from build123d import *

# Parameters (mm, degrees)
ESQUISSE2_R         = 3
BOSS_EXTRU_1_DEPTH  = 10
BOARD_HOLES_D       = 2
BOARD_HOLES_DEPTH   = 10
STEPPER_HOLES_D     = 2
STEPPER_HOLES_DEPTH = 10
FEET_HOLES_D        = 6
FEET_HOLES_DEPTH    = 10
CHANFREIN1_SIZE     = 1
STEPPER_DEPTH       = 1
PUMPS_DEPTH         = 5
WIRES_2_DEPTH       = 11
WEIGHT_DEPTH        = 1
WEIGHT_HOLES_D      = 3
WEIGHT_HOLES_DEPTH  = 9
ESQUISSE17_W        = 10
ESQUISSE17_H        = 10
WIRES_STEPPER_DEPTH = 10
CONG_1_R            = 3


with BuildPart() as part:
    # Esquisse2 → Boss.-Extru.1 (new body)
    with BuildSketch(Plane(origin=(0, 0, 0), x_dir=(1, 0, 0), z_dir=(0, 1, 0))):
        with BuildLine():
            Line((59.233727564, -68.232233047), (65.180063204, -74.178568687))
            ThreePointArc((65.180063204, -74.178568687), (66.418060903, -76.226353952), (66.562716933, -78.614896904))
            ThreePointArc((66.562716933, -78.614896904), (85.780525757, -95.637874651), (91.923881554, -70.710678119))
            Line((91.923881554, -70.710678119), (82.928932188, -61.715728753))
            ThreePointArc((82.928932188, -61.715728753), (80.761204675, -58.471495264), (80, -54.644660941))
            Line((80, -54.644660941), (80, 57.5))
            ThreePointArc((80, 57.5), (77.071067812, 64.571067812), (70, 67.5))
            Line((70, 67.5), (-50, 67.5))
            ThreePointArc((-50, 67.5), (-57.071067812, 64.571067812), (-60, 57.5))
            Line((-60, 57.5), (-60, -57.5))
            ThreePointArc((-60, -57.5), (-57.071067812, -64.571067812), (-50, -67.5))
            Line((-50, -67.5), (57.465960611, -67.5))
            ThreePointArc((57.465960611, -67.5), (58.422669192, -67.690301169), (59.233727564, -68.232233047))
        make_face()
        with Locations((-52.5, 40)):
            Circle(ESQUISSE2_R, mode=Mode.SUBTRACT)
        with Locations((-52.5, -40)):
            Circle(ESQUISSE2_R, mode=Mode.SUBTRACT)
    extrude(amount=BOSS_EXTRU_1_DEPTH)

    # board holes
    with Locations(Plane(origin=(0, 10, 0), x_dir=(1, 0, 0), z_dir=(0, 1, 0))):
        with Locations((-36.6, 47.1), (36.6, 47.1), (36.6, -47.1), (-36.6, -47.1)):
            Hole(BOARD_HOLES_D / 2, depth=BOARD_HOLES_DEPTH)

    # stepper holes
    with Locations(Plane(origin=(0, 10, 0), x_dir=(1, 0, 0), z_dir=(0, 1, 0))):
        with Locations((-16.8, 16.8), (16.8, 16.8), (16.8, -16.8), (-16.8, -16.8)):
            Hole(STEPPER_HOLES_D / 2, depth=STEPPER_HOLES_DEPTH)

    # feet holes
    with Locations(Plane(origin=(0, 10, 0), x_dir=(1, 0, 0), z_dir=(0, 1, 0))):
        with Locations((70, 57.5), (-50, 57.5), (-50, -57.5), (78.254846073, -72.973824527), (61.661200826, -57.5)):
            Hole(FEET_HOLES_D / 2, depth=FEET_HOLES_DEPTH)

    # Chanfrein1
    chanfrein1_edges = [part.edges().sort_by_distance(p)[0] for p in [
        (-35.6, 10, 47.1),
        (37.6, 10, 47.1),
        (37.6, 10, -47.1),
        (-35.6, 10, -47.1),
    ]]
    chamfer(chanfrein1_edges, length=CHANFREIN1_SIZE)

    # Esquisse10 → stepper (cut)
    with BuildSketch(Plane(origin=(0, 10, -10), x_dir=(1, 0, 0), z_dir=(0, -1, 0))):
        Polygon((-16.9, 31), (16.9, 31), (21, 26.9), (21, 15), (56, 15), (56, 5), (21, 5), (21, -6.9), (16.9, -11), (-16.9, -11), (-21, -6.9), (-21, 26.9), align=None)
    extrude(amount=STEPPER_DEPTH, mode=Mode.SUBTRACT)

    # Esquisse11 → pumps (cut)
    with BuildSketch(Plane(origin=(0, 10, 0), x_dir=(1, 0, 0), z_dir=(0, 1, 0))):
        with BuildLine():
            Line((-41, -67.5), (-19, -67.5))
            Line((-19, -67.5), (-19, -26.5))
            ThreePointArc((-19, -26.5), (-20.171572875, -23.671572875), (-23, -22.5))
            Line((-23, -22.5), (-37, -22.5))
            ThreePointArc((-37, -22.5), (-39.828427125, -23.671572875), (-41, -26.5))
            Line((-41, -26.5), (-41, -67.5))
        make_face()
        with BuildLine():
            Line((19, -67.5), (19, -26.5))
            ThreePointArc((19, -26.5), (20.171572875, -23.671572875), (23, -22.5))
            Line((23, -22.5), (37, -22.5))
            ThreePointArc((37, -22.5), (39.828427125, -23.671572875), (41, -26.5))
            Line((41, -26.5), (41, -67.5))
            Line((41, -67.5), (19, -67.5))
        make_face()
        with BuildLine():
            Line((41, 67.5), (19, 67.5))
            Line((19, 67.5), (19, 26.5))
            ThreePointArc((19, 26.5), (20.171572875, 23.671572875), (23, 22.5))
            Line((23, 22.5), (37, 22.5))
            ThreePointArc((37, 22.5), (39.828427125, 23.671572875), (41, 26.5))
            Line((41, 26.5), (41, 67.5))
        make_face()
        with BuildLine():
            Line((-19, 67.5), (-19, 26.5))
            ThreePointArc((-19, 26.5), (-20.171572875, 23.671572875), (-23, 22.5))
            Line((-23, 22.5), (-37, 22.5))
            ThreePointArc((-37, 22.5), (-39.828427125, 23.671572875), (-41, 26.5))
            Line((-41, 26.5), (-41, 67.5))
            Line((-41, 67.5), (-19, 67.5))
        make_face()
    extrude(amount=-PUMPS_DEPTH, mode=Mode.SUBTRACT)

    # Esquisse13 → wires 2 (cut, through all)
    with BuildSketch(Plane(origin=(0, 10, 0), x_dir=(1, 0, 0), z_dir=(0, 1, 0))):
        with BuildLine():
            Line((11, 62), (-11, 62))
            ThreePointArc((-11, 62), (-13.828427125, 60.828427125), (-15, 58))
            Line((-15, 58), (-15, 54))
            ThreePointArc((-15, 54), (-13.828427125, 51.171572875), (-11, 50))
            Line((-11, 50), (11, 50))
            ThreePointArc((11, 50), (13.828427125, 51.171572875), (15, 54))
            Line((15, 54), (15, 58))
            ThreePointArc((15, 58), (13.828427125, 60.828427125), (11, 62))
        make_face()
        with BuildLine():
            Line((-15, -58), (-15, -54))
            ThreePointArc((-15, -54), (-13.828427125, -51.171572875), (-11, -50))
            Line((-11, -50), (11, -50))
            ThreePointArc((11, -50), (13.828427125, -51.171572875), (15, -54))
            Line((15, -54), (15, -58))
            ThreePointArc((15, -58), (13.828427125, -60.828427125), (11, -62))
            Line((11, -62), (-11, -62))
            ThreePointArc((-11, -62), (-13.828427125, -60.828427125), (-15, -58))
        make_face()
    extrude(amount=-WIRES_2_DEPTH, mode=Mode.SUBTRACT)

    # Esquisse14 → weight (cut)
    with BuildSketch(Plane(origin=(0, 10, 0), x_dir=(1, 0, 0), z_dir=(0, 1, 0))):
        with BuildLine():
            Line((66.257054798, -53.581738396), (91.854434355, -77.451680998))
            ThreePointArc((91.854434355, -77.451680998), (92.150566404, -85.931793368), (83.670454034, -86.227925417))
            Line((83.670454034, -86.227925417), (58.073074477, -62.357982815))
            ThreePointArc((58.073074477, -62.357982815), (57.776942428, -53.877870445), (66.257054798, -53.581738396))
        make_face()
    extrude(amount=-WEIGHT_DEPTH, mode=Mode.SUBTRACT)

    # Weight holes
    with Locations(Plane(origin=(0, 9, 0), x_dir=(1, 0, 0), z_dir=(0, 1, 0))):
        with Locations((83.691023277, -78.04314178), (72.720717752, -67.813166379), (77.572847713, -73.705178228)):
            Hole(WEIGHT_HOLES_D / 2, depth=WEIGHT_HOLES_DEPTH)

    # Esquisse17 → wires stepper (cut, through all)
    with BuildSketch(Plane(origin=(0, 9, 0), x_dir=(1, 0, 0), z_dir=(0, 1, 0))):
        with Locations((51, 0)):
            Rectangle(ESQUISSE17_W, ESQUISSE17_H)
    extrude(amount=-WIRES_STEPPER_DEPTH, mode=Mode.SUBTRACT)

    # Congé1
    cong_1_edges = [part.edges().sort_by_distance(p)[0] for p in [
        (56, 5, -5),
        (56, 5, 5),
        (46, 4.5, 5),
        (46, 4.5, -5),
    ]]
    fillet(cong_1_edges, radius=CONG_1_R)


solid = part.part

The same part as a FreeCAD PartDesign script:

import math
import FreeCAD as App
import Part
import Sketcher
Q = App.Units.Quantity


def edges_at(feature, points):
    """Names of the edges that pass closest to the given points."""
    edges = feature.Shape.Edges
    near = lambda p: min(range(len(edges)), key=lambda i: edges[i].distToShape(Part.Vertex(*p))[0])
    return sorted({f"Edge{near(p) + 1}" for p in points})


def add_polygon(sketch, points):
    """Adds a closed chain of lines whose ends are joined by coincident constraints."""
    first, n = sketch.GeometryCount, len(points)
    for a, b in zip(points, points[1:] + points[:1]):
        sketch.addGeometry(Part.LineSegment(App.Vector(*a, 0), App.Vector(*b, 0)), False)
    for i in range(n):
        sketch.addConstraint(Sketcher.Constraint("Coincident", first + i, 2, first + (i + 1) % n, 1))

doc = App.newDocument("Part")
body = doc.addObject("PartDesign::Body", "Body")

# Sketch on XZ plane
sketch1 = body.newObject("Sketcher::SketchObject", "Sketch")
sketch1.AttachmentSupport = (doc.getObject("XZ_Plane"), [""])
sketch1.MapMode = "FlatFace"
sketch1.addGeometry(Part.LineSegment(App.Vector(59.2, 68.2, 0), App.Vector(65.2, 74.2, 0)), False)
sketch1.addGeometry(Part.ArcOfCircle(Part.Circle(App.Vector(61.6, 77.7, 0), App.Vector(0, 0, 1), 5), math.radians(-45), math.radians(10)), False)
sketch1.addGeometry(Part.ArcOfCircle(Part.Circle(App.Vector(81.3, 81.3, 0), App.Vector(0, 0, 1), 15), math.radians(-45), math.radians(190)), False)
sketch1.addGeometry(Part.LineSegment(App.Vector(91.9, 70.7, 0), App.Vector(82.9, 61.7, 0)), False)
sketch1.addGeometry(Part.ArcOfCircle(Part.Circle(App.Vector(90, 54.6, 0), App.Vector(0, 0, 1), 10), math.radians(135), math.radians(180)), False)
sketch1.addGeometry(Part.LineSegment(App.Vector(80, 54.6, 0), App.Vector(80, -57.5, 0)), False)
sketch1.addGeometry(Part.ArcOfCircle(Part.Circle(App.Vector(70, -57.5, 0), App.Vector(0, 0, 1), 10), math.radians(-90), math.radians(0)), False)
sketch1.addGeometry(Part.LineSegment(App.Vector(70, -67.5, 0), App.Vector(-50, -67.5, 0)), False)
sketch1.addGeometry(Part.ArcOfCircle(Part.Circle(App.Vector(-50, -57.5, 0), App.Vector(0, 0, 1), 10), math.radians(180), math.radians(270)), False)
sketch1.addGeometry(Part.LineSegment(App.Vector(-60, -57.5, 0), App.Vector(-60, 57.5, 0)), False)
sketch1.addGeometry(Part.ArcOfCircle(Part.Circle(App.Vector(-50, 57.5, 0), App.Vector(0, 0, 1), 10), math.radians(90), math.radians(180)), False)
sketch1.addGeometry(Part.LineSegment(App.Vector(-50, 67.5, 0), App.Vector(57.5, 67.5, 0)), False)
sketch1.addGeometry(Part.ArcOfCircle(Part.Circle(App.Vector(57.5, 70, 0), App.Vector(0, 0, 1), 2.5), math.radians(-90), math.radians(-45)), False)
sketch1.addGeometry(Part.Circle(App.Vector(-52.5, 40, 0), App.Vector(0, 0, 1), 3), False)
sketch1.addGeometry(Part.Circle(App.Vector(-52.5, -40, 0), App.Vector(0, 0, 1), 3), False)
sketch1.addConstraint(Sketcher.Constraint("Tangent", 0, 2, 1, 1))
sketch1.addConstraint(Sketcher.Constraint("Tangent", 1, 2, 2, 2))
sketch1.addConstraint(Sketcher.Constraint("Tangent", 2, 1, 3, 1))
sketch1.addConstraint(Sketcher.Constraint("Tangent", 3, 2, 4, 1))
sketch1.addConstraint(Sketcher.Constraint("Tangent", 4, 2, 5, 1))
sketch1.addConstraint(Sketcher.Constraint("Tangent", 5, 2, 6, 2))
sketch1.addConstraint(Sketcher.Constraint("Tangent", 6, 1, 7, 1))
sketch1.addConstraint(Sketcher.Constraint("Tangent", 7, 2, 8, 2))
sketch1.addConstraint(Sketcher.Constraint("Tangent", 8, 1, 9, 1))
sketch1.addConstraint(Sketcher.Constraint("Tangent", 9, 2, 10, 2))
sketch1.addConstraint(Sketcher.Constraint("Tangent", 10, 1, 11, 1))
sketch1.addConstraint(Sketcher.Constraint("Tangent", 11, 2, 12, 1))
sketch1.addConstraint(Sketcher.Constraint("Tangent", 12, 2, 0, 1))
sketch1.addConstraint(Sketcher.Constraint("Vertical", 5))
sketch1.addConstraint(Sketcher.Constraint("Horizontal", 7))
sketch1.addConstraint(Sketcher.Constraint("Vertical", 9))
sketch1.addConstraint(Sketcher.Constraint("Horizontal", 11))
sketch1.addConstraint(Sketcher.Constraint("Equal", 4, 6))
sketch1.addConstraint(Sketcher.Constraint("Equal", 6, 8))
sketch1.addConstraint(Sketcher.Constraint("Equal", 8, 10))
sketch1.addConstraint(Sketcher.Constraint("Equal", 13, 14))
sketch1.addConstraint(Sketcher.Constraint("Symmetric", 13, 3, 14, 3, -1))
sketch1.addConstraint(Sketcher.Constraint("Parallel", 0, 3))
sketch1.addConstraint(Sketcher.Constraint("Diameter", 13, 6.0))
sketch1.addConstraint(Sketcher.Constraint("Radius", 1, 5.0))
sketch1.addConstraint(Sketcher.Constraint("Radius", 2, 15.0))
sketch1.addConstraint(Sketcher.Constraint("Radius", 4, 10.0))
sketch1.addConstraint(Sketcher.Constraint("Radius", 12, 2.5))
sketch1.addConstraint(Sketcher.Constraint("DistanceX", 7, 2, 7, 1, 120.0))
sketch1.addConstraint(Sketcher.Constraint("DistanceY", 9, 1, 9, 2, 115.0))
sketch1.addConstraint(Sketcher.Constraint("Angle", 0, Q("45 deg")))
sketch1.addConstraint(Sketcher.Constraint("DistanceX", -1, 1, 4, 3, 90.0))
sketch1.addConstraint(Sketcher.Constraint("DistanceY", -1, 1, 12, 3, 70.0))
sketch1.addConstraint(Sketcher.Constraint("DistanceY", -1, 1, 13, 3, 40.0))
sketch1.addConstraint(Sketcher.Constraint("DistanceX", 13, 3, -1, 1, 52.5))
sketch1.addConstraint(Sketcher.Constraint("DistanceX", 11, 1, 11, 2, 107.465961))
sketch1.addConstraint(Sketcher.Constraint("DistanceY", 5, 2, 5, 1, 112.144661))
sketch1.addConstraint(Sketcher.Constraint("DistanceX", 12, 2, 1, 3, 2.410802))
pad1 = body.newObject("PartDesign::Pad", "Pad")
pad1.Profile = sketch1
pad1.Length = 10
pad1.Reversed = True

# Sketch on XZ plane
sketch2 = body.newObject("Sketcher::SketchObject", "Sketch001")
sketch2.AttachmentSupport = (doc.getObject("XZ_Plane"), [""])
sketch2.MapMode = "FlatFace"
sketch2.AttachmentOffset = App.Placement(App.Vector(0, 0, -10), App.Rotation())
sketch2.addGeometry(Part.Circle(App.Vector(-36.6, -47.1, 0), App.Vector(0, 0, 1), 1), False)
sketch2.addGeometry(Part.Circle(App.Vector(36.6, -47.1, 0), App.Vector(0, 0, 1), 1), False)
sketch2.addGeometry(Part.Circle(App.Vector(36.6, 47.1, 0), App.Vector(0, 0, 1), 1), False)
sketch2.addGeometry(Part.Circle(App.Vector(-36.6, 47.1, 0), App.Vector(0, 0, 1), 1), False)
sketch2.addConstraint(Sketcher.Constraint("Equal", 0, 1))
sketch2.addConstraint(Sketcher.Constraint("Equal", 1, 2))
sketch2.addConstraint(Sketcher.Constraint("Equal", 2, 3))
sketch2.addConstraint(Sketcher.Constraint("Symmetric", 0, 3, 2, 3, -1, 1))
sketch2.addConstraint(Sketcher.Constraint("Symmetric", 1, 3, 3, 3, -1, 1))
sketch2.addConstraint(Sketcher.Constraint("Symmetric", 0, 3, 1, 3, -2))
sketch2.addConstraint(Sketcher.Constraint("Diameter", 0, 2.0))
sketch2.addConstraint(Sketcher.Constraint("DistanceX", 0, 3, -1, 1, 36.6))
sketch2.addConstraint(Sketcher.Constraint("DistanceY", 0, 3, -1, 1, 47.1))
doc.recompute()
hole = body.newObject("PartDesign::Hole", "Hole")
hole.Profile = sketch2
hole.ThreadType = "None"
hole.Diameter = 2
hole.DepthType = "Dimension"
hole.Depth = 10
hole.DrillPoint = "Flat"
hole.Reversed = True

# Sketch on XZ plane
sketch3 = body.newObject("Sketcher::SketchObject", "Sketch002")
sketch3.AttachmentSupport = (doc.getObject("XZ_Plane"), [""])
sketch3.MapMode = "FlatFace"
sketch3.AttachmentOffset = App.Placement(App.Vector(0, 0, -10), App.Rotation())
sketch3.addGeometry(Part.Circle(App.Vector(-16.8, -16.8, 0), App.Vector(0, 0, 1), 1), False)
sketch3.addGeometry(Part.Circle(App.Vector(16.8, -16.8, 0), App.Vector(0, 0, 1), 1), False)
sketch3.addGeometry(Part.Circle(App.Vector(16.8, 16.8, 0), App.Vector(0, 0, 1), 1), False)
sketch3.addGeometry(Part.Circle(App.Vector(-16.8, 16.8, 0), App.Vector(0, 0, 1), 1), False)
sketch3.addConstraint(Sketcher.Constraint("Equal", 0, 1))
sketch3.addConstraint(Sketcher.Constraint("Equal", 1, 2))
sketch3.addConstraint(Sketcher.Constraint("Equal", 2, 3))
sketch3.addConstraint(Sketcher.Constraint("Symmetric", 0, 3, 2, 3, -1, 1))
sketch3.addConstraint(Sketcher.Constraint("Symmetric", 1, 3, 3, 3, -1, 1))
sketch3.addConstraint(Sketcher.Constraint("Symmetric", 0, 3, 1, 3, -2))
sketch3.addConstraint(Sketcher.Constraint("Diameter", 0, 2.0))
sketch3.addConstraint(Sketcher.Constraint("DistanceX", 0, 3, -1, 1, 16.8))
sketch3.addConstraint(Sketcher.Constraint("DistanceY", 0, 3, -1, 1, 16.8))
doc.recompute()
hole2 = body.newObject("PartDesign::Hole", "Hole001")
hole2.Profile = sketch3
hole2.ThreadType = "None"
hole2.Diameter = 2
hole2.DepthType = "Dimension"
hole2.Depth = 10
hole2.DrillPoint = "Flat"
hole2.Reversed = True

# Sketch on XZ plane
sketch4 = body.newObject("Sketcher::SketchObject", "Sketch003")
sketch4.AttachmentSupport = (doc.getObject("XZ_Plane"), [""])
sketch4.MapMode = "FlatFace"
sketch4.AttachmentOffset = App.Placement(App.Vector(0, 0, -10), App.Rotation())
sketch4.addGeometry(Part.Circle(App.Vector(70, -57.5, 0), App.Vector(0, 0, 1), 3), False)
sketch4.addGeometry(Part.Circle(App.Vector(-50, -57.5, 0), App.Vector(0, 0, 1), 3), False)
sketch4.addGeometry(Part.Circle(App.Vector(-50, 57.5, 0), App.Vector(0, 0, 1), 3), False)
sketch4.addGeometry(Part.Circle(App.Vector(78.3, 73, 0), App.Vector(0, 0, 1), 3), False)
sketch4.addGeometry(Part.Circle(App.Vector(61.7, 57.5, 0), App.Vector(0, 0, 1), 3), False)
sketch4.addConstraint(Sketcher.Constraint("Equal", 0, 1))
sketch4.addConstraint(Sketcher.Constraint("Equal", 1, 2))
sketch4.addConstraint(Sketcher.Constraint("Equal", 2, 3))
sketch4.addConstraint(Sketcher.Constraint("Equal", 3, 4))
sketch4.addConstraint(Sketcher.Constraint("Symmetric", 1, 3, 2, 3, -1))
sketch4.addConstraint(Sketcher.Constraint("Horizontal", 0, 3, 1, 3))
sketch4.addConstraint(Sketcher.Constraint("Horizontal", 2, 3, 4, 3))
sketch4.addConstraint(Sketcher.Constraint("Diameter", 0, 6.0))
sketch4.addConstraint(Sketcher.Constraint("DistanceX", -1, 1, 0, 3, 70.0))
sketch4.addConstraint(Sketcher.Constraint("DistanceX", 1, 3, -1, 1, 50.0))
sketch4.addConstraint(Sketcher.Constraint("DistanceY", 1, 3, 2, 3, 115.0))
sketch4.addConstraint(Sketcher.Constraint("DistanceX", -1, 1, 4, 3, 61.661201))
sketch4.addConstraint(Sketcher.Constraint("DistanceX", -1, 1, 3, 3, 78.254846))
sketch4.addConstraint(Sketcher.Constraint("DistanceY", -1, 1, 3, 3, 72.973825))
doc.recompute()
hole3 = body.newObject("PartDesign::Hole", "Hole002")
hole3.Profile = sketch4
hole3.ThreadType = "None"
hole3.Diameter = 6
hole3.DepthType = "Dimension"
hole3.Depth = 10
hole3.DrillPoint = "Flat"
hole3.Reversed = True
doc.recompute()

chamfer = body.newObject("PartDesign::Chamfer", "Chamfer")
chamfer.Base = (hole3, edges_at(hole3, [
    (-35.6, 10, 47.1),
    (37.6, 10, 47.1),
    (37.6, 10, -47.1),
    (-35.6, 10, -47.1),
]))
chamfer.Size = 1

# Sketch on XZ plane
sketch5 = body.newObject("Sketcher::SketchObject", "Sketch004")
sketch5.AttachmentSupport = (doc.getObject("XZ_Plane"), [""])
sketch5.MapMode = "FlatFace"
sketch5.AttachmentOffset = App.Placement(App.Vector(0, 0, -10), App.Rotation())
add_polygon(sketch5, [(17, 21), (-17, 21), (-21, 17), (-21, -17), (-17, -21), (17, -21), (21, -17), (21, -5), (56, -5), (56, 5), (21, 5), (21, 17)])  # lines 0-11
sketch5.addConstraint(Sketcher.Constraint("Horizontal", 0))
sketch5.addConstraint(Sketcher.Constraint("Vertical", 2))
sketch5.addConstraint(Sketcher.Constraint("Horizontal", 4))
sketch5.addConstraint(Sketcher.Constraint("Vertical", 6))
sketch5.addConstraint(Sketcher.Constraint("Horizontal", 7))
sketch5.addConstraint(Sketcher.Constraint("Vertical", 8))
sketch5.addConstraint(Sketcher.Constraint("Horizontal", 9))
sketch5.addConstraint(Sketcher.Constraint("Vertical", 10))
sketch5.addConstraint(Sketcher.Constraint("Symmetric", 0, 2, 4, 2, -1, 1))
sketch5.addConstraint(Sketcher.Constraint("Symmetric", 1, 2, 5, 2, -1, 1))
sketch5.addConstraint(Sketcher.Constraint("Symmetric", 2, 2, 10, 2, -1, 1))
sketch5.addConstraint(Sketcher.Constraint("Perpendicular", 1, 3))
sketch5.addConstraint(Sketcher.Constraint("Perpendicular", 5, 11))
sketch5.addConstraint(Sketcher.Constraint("Horizontal", 2, 2, 5, 2))
sketch5.addConstraint(Sketcher.Constraint("Vertical", 0, 2, 3, 2))
sketch5.addConstraint(Sketcher.Constraint("Equal", 4, 2))
sketch5.addConstraint(Sketcher.Constraint("Equal", 6, 10))
sketch5.addConstraint(Sketcher.Constraint("DistanceX", 7, 1, 7, 2, 35.0))
sketch5.addConstraint(Sketcher.Constraint("DistanceY", 8, 1, 8, 2, 10.0))
sketch5.addConstraint(Sketcher.Constraint("DistanceX", 0, 2, 0, 1, 33.8))
sketch5.addConstraint(Sketcher.Constraint("DistanceY", -1, 1, 0, 2, 21.0))
pocket1 = body.newObject("PartDesign::Pocket", "Pocket")
pocket1.Profile = sketch5
pocket1.Length = 1
pocket1.Reversed = True

# Sketch on XZ plane
sketch6 = body.newObject("Sketcher::SketchObject", "Sketch005")
sketch6.AttachmentSupport = (doc.getObject("XZ_Plane"), [""])
sketch6.MapMode = "FlatFace"
sketch6.AttachmentOffset = App.Placement(App.Vector(0, 0, -10), App.Rotation())
sketch6.addGeometry(Part.LineSegment(App.Vector(-41, 67.5, 0), App.Vector(-19, 67.5, 0)), False)
sketch6.addGeometry(Part.LineSegment(App.Vector(-19, 67.5, 0), App.Vector(-19, 26.5, 0)), False)
sketch6.addGeometry(Part.ArcOfCircle(Part.Circle(App.Vector(-23, 26.5, 0), App.Vector(0, 0, 1), 4), math.radians(-90), math.radians(0)), False)
sketch6.addGeometry(Part.LineSegment(App.Vector(-23, 22.5, 0), App.Vector(-37, 22.5, 0)), False)
sketch6.addGeometry(Part.ArcOfCircle(Part.Circle(App.Vector(-37, 26.5, 0), App.Vector(0, 0, 1), 4), math.radians(180), math.radians(270)), False)
sketch6.addGeometry(Part.LineSegment(App.Vector(-41, 26.5, 0), App.Vector(-41, 67.5, 0)), False)
sketch6.addGeometry(Part.LineSegment(App.Vector(19, 26.5, 0), App.Vector(19, 67.5, 0)), False)
sketch6.addGeometry(Part.LineSegment(App.Vector(19, 67.5, 0), App.Vector(41, 67.5, 0)), False)
sketch6.addGeometry(Part.LineSegment(App.Vector(41, 67.5, 0), App.Vector(41, 26.5, 0)), False)
sketch6.addGeometry(Part.ArcOfCircle(Part.Circle(App.Vector(37, 26.5, 0), App.Vector(0, 0, 1), 4), math.radians(-90), math.radians(0)), False)
sketch6.addGeometry(Part.LineSegment(App.Vector(37, 22.5, 0), App.Vector(23, 22.5, 0)), False)
sketch6.addGeometry(Part.ArcOfCircle(Part.Circle(App.Vector(23, 26.5, 0), App.Vector(0, 0, 1), 4), math.radians(180), math.radians(270)), False)
sketch6.addGeometry(Part.LineSegment(App.Vector(41, -67.5, 0), App.Vector(19, -67.5, 0)), False)
sketch6.addGeometry(Part.LineSegment(App.Vector(19, -67.5, 0), App.Vector(19, -26.5, 0)), False)
sketch6.addGeometry(Part.ArcOfCircle(Part.Circle(App.Vector(23, -26.5, 0), App.Vector(0, 0, 1), 4), math.radians(90), math.radians(180)), False)
sketch6.addGeometry(Part.LineSegment(App.Vector(23, -22.5, 0), App.Vector(37, -22.5, 0)), False)
sketch6.addGeometry(Part.ArcOfCircle(Part.Circle(App.Vector(37, -26.5, 0), App.Vector(0, 0, 1), 4), math.radians(0), math.radians(90)), False)
sketch6.addGeometry(Part.LineSegment(App.Vector(41, -26.5, 0), App.Vector(41, -67.5, 0)), False)
sketch6.addGeometry(Part.LineSegment(App.Vector(-19, -26.5, 0), App.Vector(-19, -67.5, 0)), False)
sketch6.addGeometry(Part.LineSegment(App.Vector(-19, -67.5, 0), App.Vector(-41, -67.5, 0)), False)
sketch6.addGeometry(Part.LineSegment(App.Vector(-41, -67.5, 0), App.Vector(-41, -26.5, 0)), False)
sketch6.addGeometry(Part.ArcOfCircle(Part.Circle(App.Vector(-37, -26.5, 0), App.Vector(0, 0, 1), 4), math.radians(90), math.radians(180)), False)
sketch6.addGeometry(Part.LineSegment(App.Vector(-37, -22.5, 0), App.Vector(-23, -22.5, 0)), False)
sketch6.addGeometry(Part.ArcOfCircle(Part.Circle(App.Vector(-23, -26.5, 0), App.Vector(0, 0, 1), 4), math.radians(0), math.radians(90)), False)
sketch6.addConstraint(Sketcher.Constraint("Coincident", 0, 2, 1, 1))
sketch6.addConstraint(Sketcher.Constraint("Tangent", 1, 2, 2, 2))
sketch6.addConstraint(Sketcher.Constraint("Tangent", 2, 1, 3, 1))
sketch6.addConstraint(Sketcher.Constraint("Tangent", 3, 2, 4, 2))
sketch6.addConstraint(Sketcher.Constraint("Tangent", 4, 1, 5, 1))
sketch6.addConstraint(Sketcher.Constraint("Coincident", 5, 2, 0, 1))
sketch6.addConstraint(Sketcher.Constraint("Coincident", 6, 2, 7, 1))
sketch6.addConstraint(Sketcher.Constraint("Coincident", 7, 2, 8, 1))
sketch6.addConstraint(Sketcher.Constraint("Tangent", 8, 2, 9, 2))
sketch6.addConstraint(Sketcher.Constraint("Tangent", 9, 1, 10, 1))
sketch6.addConstraint(Sketcher.Constraint("Tangent", 10, 2, 11, 2))
sketch6.addConstraint(Sketcher.Constraint("Tangent", 11, 1, 6, 1))
sketch6.addConstraint(Sketcher.Constraint("Coincident", 12, 2, 13, 1))
sketch6.addConstraint(Sketcher.Constraint("Tangent", 13, 2, 14, 2))
sketch6.addConstraint(Sketcher.Constraint("Tangent", 14, 1, 15, 1))
sketch6.addConstraint(Sketcher.Constraint("Tangent", 15, 2, 16, 2))
sketch6.addConstraint(Sketcher.Constraint("Tangent", 16, 1, 17, 1))
sketch6.addConstraint(Sketcher.Constraint("Coincident", 17, 2, 12, 1))
sketch6.addConstraint(Sketcher.Constraint("Coincident", 18, 2, 19, 1))
sketch6.addConstraint(Sketcher.Constraint("Coincident", 19, 2, 20, 1))
sketch6.addConstraint(Sketcher.Constraint("Tangent", 20, 2, 21, 2))
sketch6.addConstraint(Sketcher.Constraint("Tangent", 21, 1, 22, 1))
sketch6.addConstraint(Sketcher.Constraint("Tangent", 22, 2, 23, 2))
sketch6.addConstraint(Sketcher.Constraint("Tangent", 23, 1, 18, 1))
sketch6.addConstraint(Sketcher.Constraint("Horizontal", 0))
sketch6.addConstraint(Sketcher.Constraint("Vertical", 1))
sketch6.addConstraint(Sketcher.Constraint("Horizontal", 3))
sketch6.addConstraint(Sketcher.Constraint("Vertical", 5))
sketch6.addConstraint(Sketcher.Constraint("Vertical", 6))
sketch6.addConstraint(Sketcher.Constraint("Horizontal", 7))
sketch6.addConstraint(Sketcher.Constraint("Vertical", 8))
sketch6.addConstraint(Sketcher.Constraint("Horizontal", 10))
sketch6.addConstraint(Sketcher.Constraint("Horizontal", 12))
sketch6.addConstraint(Sketcher.Constraint("Vertical", 13))
sketch6.addConstraint(Sketcher.Constraint("Horizontal", 15))
sketch6.addConstraint(Sketcher.Constraint("Vertical", 17))
sketch6.addConstraint(Sketcher.Constraint("Vertical", 18))
sketch6.addConstraint(Sketcher.Constraint("Horizontal", 19))
sketch6.addConstraint(Sketcher.Constraint("Vertical", 20))
sketch6.addConstraint(Sketcher.Constraint("Horizontal", 22))
sketch6.addConstraint(Sketcher.Constraint("Equal", 2, 4))
sketch6.addConstraint(Sketcher.Constraint("Equal", 4, 9))
sketch6.addConstraint(Sketcher.Constraint("Equal", 9, 11))
sketch6.addConstraint(Sketcher.Constraint("Equal", 11, 14))
sketch6.addConstraint(Sketcher.Constraint("Equal", 14, 16))
sketch6.addConstraint(Sketcher.Constraint("Equal", 16, 21))
sketch6.addConstraint(Sketcher.Constraint("Equal", 21, 23))
sketch6.addConstraint(Sketcher.Constraint("Symmetric", 2, 3, 14, 3, -1, 1))
sketch6.addConstraint(Sketcher.Constraint("Symmetric", 9, 3, 21, 3, -1, 1))
sketch6.addConstraint(Sketcher.Constraint("Symmetric", 5, 2, 17, 2, -1, 1))
sketch6.addConstraint(Sketcher.Constraint("Symmetric", 6, 2, 18, 2, -1, 1))
sketch6.addConstraint(Sketcher.Constraint("Symmetric", 4, 3, 9, 3, -2))
sketch6.addConstraint(Sketcher.Constraint("Symmetric", 0, 2, 6, 2, -2))
sketch6.addConstraint(Sketcher.Constraint("Radius", 2, 4.0))
sketch6.addConstraint(Sketcher.Constraint("DistanceX", 0, 1, 0, 2, 22.0))
sketch6.addConstraint(Sketcher.Constraint("DistanceY", 1, 2, 1, 1, 41.0))
sketch6.addConstraint(Sketcher.Constraint("DistanceX", 2, 3, -1, 1, 23.0))
sketch6.addConstraint(Sketcher.Constraint("DistanceY", 14, 3, 11, 3, 53.0))
pocket2 = body.newObject("PartDesign::Pocket", "Pocket001")
pocket2.Profile = sketch6
pocket2.Length = 5
pocket2.Reversed = True

# Sketch on XZ plane
sketch7 = body.newObject("Sketcher::SketchObject", "Sketch006")
sketch7.AttachmentSupport = (doc.getObject("XZ_Plane"), [""])
sketch7.MapMode = "FlatFace"
sketch7.AttachmentOffset = App.Placement(App.Vector(0, 0, -10), App.Rotation())
sketch7.addGeometry(Part.LineSegment(App.Vector(11, -62, 0), App.Vector(-11, -62, 0)), False)
sketch7.addGeometry(Part.ArcOfCircle(Part.Circle(App.Vector(-11, -58, 0), App.Vector(0, 0, 1), 4), math.radians(180), math.radians(270)), False)
sketch7.addGeometry(Part.LineSegment(App.Vector(-15, -58, 0), App.Vector(-15, -54, 0)), False)
sketch7.addGeometry(Part.ArcOfCircle(Part.Circle(App.Vector(-11, -54, 0), App.Vector(0, 0, 1), 4), math.radians(90), math.radians(180)), False)
sketch7.addGeometry(Part.LineSegment(App.Vector(-11, -50, 0), App.Vector(11, -50, 0)), False)
sketch7.addGeometry(Part.ArcOfCircle(Part.Circle(App.Vector(11, -54, 0), App.Vector(0, 0, 1), 4), math.radians(0), math.radians(90)), False)
sketch7.addGeometry(Part.LineSegment(App.Vector(15, -54, 0), App.Vector(15, -58, 0)), False)
sketch7.addGeometry(Part.ArcOfCircle(Part.Circle(App.Vector(11, -58, 0), App.Vector(0, 0, 1), 4), math.radians(-90), math.radians(0)), False)
sketch7.addGeometry(Part.LineSegment(App.Vector(-15, 54, 0), App.Vector(-15, 58, 0)), False)
sketch7.addGeometry(Part.ArcOfCircle(Part.Circle(App.Vector(-11, 58, 0), App.Vector(0, 0, 1), 4), math.radians(90), math.radians(180)), False)
sketch7.addGeometry(Part.LineSegment(App.Vector(-11, 62, 0), App.Vector(11, 62, 0)), False)
sketch7.addGeometry(Part.ArcOfCircle(Part.Circle(App.Vector(11, 58, 0), App.Vector(0, 0, 1), 4), math.radians(0), math.radians(90)), False)
sketch7.addGeometry(Part.LineSegment(App.Vector(15, 58, 0), App.Vector(15, 54, 0)), False)
sketch7.addGeometry(Part.ArcOfCircle(Part.Circle(App.Vector(11, 54, 0), App.Vector(0, 0, 1), 4), math.radians(-90), math.radians(0)), False)
sketch7.addGeometry(Part.LineSegment(App.Vector(11, 50, 0), App.Vector(-11, 50, 0)), False)
sketch7.addGeometry(Part.ArcOfCircle(Part.Circle(App.Vector(-11, 54, 0), App.Vector(0, 0, 1), 4), math.radians(180), math.radians(270)), False)
sketch7.addConstraint(Sketcher.Constraint("Tangent", 0, 2, 1, 2))
sketch7.addConstraint(Sketcher.Constraint("Tangent", 1, 1, 2, 1))
sketch7.addConstraint(Sketcher.Constraint("Tangent", 2, 2, 3, 2))
sketch7.addConstraint(Sketcher.Constraint("Tangent", 3, 1, 4, 1))
sketch7.addConstraint(Sketcher.Constraint("Tangent", 4, 2, 5, 2))
sketch7.addConstraint(Sketcher.Constraint("Tangent", 5, 1, 6, 1))
sketch7.addConstraint(Sketcher.Constraint("Tangent", 6, 2, 7, 2))
sketch7.addConstraint(Sketcher.Constraint("Tangent", 7, 1, 0, 1))
sketch7.addConstraint(Sketcher.Constraint("Tangent", 8, 2, 9, 2))
sketch7.addConstraint(Sketcher.Constraint("Tangent", 9, 1, 10, 1))
sketch7.addConstraint(Sketcher.Constraint("Tangent", 10, 2, 11, 2))
sketch7.addConstraint(Sketcher.Constraint("Tangent", 11, 1, 12, 1))
sketch7.addConstraint(Sketcher.Constraint("Tangent", 12, 2, 13, 2))
sketch7.addConstraint(Sketcher.Constraint("Tangent", 13, 1, 14, 1))
sketch7.addConstraint(Sketcher.Constraint("Tangent", 14, 2, 15, 2))
sketch7.addConstraint(Sketcher.Constraint("Tangent", 15, 1, 8, 1))
sketch7.addConstraint(Sketcher.Constraint("Horizontal", 0))
sketch7.addConstraint(Sketcher.Constraint("Vertical", 2))
sketch7.addConstraint(Sketcher.Constraint("Horizontal", 4))
sketch7.addConstraint(Sketcher.Constraint("Vertical", 6))
sketch7.addConstraint(Sketcher.Constraint("Vertical", 8))
sketch7.addConstraint(Sketcher.Constraint("Horizontal", 10))
sketch7.addConstraint(Sketcher.Constraint("Vertical", 12))
sketch7.addConstraint(Sketcher.Constraint("Horizontal", 14))
sketch7.addConstraint(Sketcher.Constraint("Equal", 1, 3))
sketch7.addConstraint(Sketcher.Constraint("Equal", 3, 5))
sketch7.addConstraint(Sketcher.Constraint("Equal", 5, 7))
sketch7.addConstraint(Sketcher.Constraint("Equal", 7, 9))
sketch7.addConstraint(Sketcher.Constraint("Equal", 9, 11))
sketch7.addConstraint(Sketcher.Constraint("Equal", 11, 13))
sketch7.addConstraint(Sketcher.Constraint("Equal", 13, 15))
sketch7.addConstraint(Sketcher.Constraint("Symmetric", 7, 3, 9, 3, -1, 1))
sketch7.addConstraint(Sketcher.Constraint("Symmetric", 3, 3, 13, 3, -1, 1))
sketch7.addConstraint(Sketcher.Constraint("Vertical", 3, 3, 9, 3))
sketch7.addConstraint(Sketcher.Constraint("Radius", 1, 4.0))
sketch7.addConstraint(Sketcher.Constraint("DistanceX", 0, 2, 0, 1, 22.0))
sketch7.addConstraint(Sketcher.Constraint("DistanceY", 2, 1, 2, 2, 4.0))
sketch7.addConstraint(Sketcher.Constraint("DistanceY", 1, 3, -1, 1, 58.0))
pocket3 = body.newObject("PartDesign::Pocket", "Pocket002")
pocket3.Profile = sketch7
pocket3.Type = "ThroughAll"
pocket3.Reversed = True

# Sketch on XZ plane
sketch8 = body.newObject("Sketcher::SketchObject", "Sketch007")
sketch8.AttachmentSupport = (doc.getObject("XZ_Plane"), [""])
sketch8.MapMode = "FlatFace"
sketch8.AttachmentOffset = App.Placement(App.Vector(0, 0, -10), App.Rotation())
sketch8.addGeometry(Part.LineSegment(App.Vector(92, 77, 0), App.Vector(66, 54, 0)), False)
sketch8.addGeometry(Part.ArcOfCircle(Part.Circle(App.Vector(62, 58, 0), App.Vector(0, 0, 1), 6), math.radians(133), math.radians(313)), False)
sketch8.addGeometry(Part.LineSegment(App.Vector(58, 62, 0), App.Vector(84, 86, 0)), False)
sketch8.addGeometry(Part.ArcOfCircle(Part.Circle(App.Vector(88, 82, 0), App.Vector(0, 0, 1), 6), math.radians(-47), math.radians(133)), False)
sketch8.addConstraint(Sketcher.Constraint("Tangent", 0, 2, 1, 2))
sketch8.addConstraint(Sketcher.Constraint("Tangent", 1, 1, 2, 1))
sketch8.addConstraint(Sketcher.Constraint("Tangent", 2, 2, 3, 2))
sketch8.addConstraint(Sketcher.Constraint("Tangent", 3, 1, 0, 1))
sketch8.addConstraint(Sketcher.Constraint("Equal", 1, 3))
sketch8.addConstraint(Sketcher.Constraint("Radius", 1, 6.0))
sketch8.addConstraint(Sketcher.Constraint("Angle", 0, Q("-137 deg")))
sketch8.addConstraint(Sketcher.Constraint("Distance", 0, 35.0))
sketch8.addConstraint(Sketcher.Constraint("DistanceY", -1, 1, 1, 3, 57.969861))
sketch8.addConstraint(Sketcher.Constraint("DistanceX", -1, 1, 1, 3, 62.165065))
pocket4 = body.newObject("PartDesign::Pocket", "Pocket003")
pocket4.Profile = sketch8
pocket4.Length = 1
pocket4.Reversed = True

# Sketch on XZ plane
sketch9 = body.newObject("Sketcher::SketchObject", "Sketch008")
sketch9.AttachmentSupport = (doc.getObject("XZ_Plane"), [""])
sketch9.MapMode = "FlatFace"
sketch9.AttachmentOffset = App.Placement(App.Vector(0, 0, -9), App.Rotation())
sketch9.addGeometry(Part.Circle(App.Vector(83.7, 78, 0), App.Vector(0, 0, 1), 1.5), False)
sketch9.addGeometry(Part.Circle(App.Vector(72.7, 67.8, 0), App.Vector(0, 0, 1), 1.5), False)
sketch9.addGeometry(Part.Circle(App.Vector(77.6, 73.7, 0), App.Vector(0, 0, 1), 1.5), False)
sketch9.addConstraint(Sketcher.Constraint("Equal", 0, 1))
sketch9.addConstraint(Sketcher.Constraint("Equal", 1, 2))
sketch9.addConstraint(Sketcher.Constraint("Diameter", 0, 3.0))
sketch9.addConstraint(Sketcher.Constraint("DistanceY", -1, 1, 0, 3, 78.043142))
sketch9.addConstraint(Sketcher.Constraint("DistanceY", -1, 1, 2, 3, 73.705178))
sketch9.addConstraint(Sketcher.Constraint("DistanceX", 1, 3, 2, 3, 4.85213))
sketch9.addConstraint(Sketcher.Constraint("DistanceY", 1, 3, 2, 3, 5.892012))
sketch9.addConstraint(Sketcher.Constraint("DistanceX", -1, 1, 0, 3, 83.691023))
sketch9.addConstraint(Sketcher.Constraint("DistanceX", -1, 1, 1, 3, 72.720718))
doc.recompute()
hole4 = body.newObject("PartDesign::Hole", "Hole003")
hole4.Profile = sketch9
hole4.ThreadType = "None"
hole4.Diameter = 3
hole4.DepthType = "Dimension"
hole4.Depth = 9
hole4.DrillPoint = "Flat"
hole4.Reversed = True

# Sketch on XZ plane
sketch10 = body.newObject("Sketcher::SketchObject", "Sketch009")
sketch10.AttachmentSupport = (doc.getObject("XZ_Plane"), [""])
sketch10.MapMode = "FlatFace"
sketch10.AttachmentOffset = App.Placement(App.Vector(0, 0, -9), App.Rotation())
add_polygon(sketch10, [(46, -5), (46, 5), (56, 5), (56, -5)])  # lines 0-3
sketch10.addConstraint(Sketcher.Constraint("Vertical", 0))
sketch10.addConstraint(Sketcher.Constraint("Horizontal", 1))
sketch10.addConstraint(Sketcher.Constraint("Vertical", 2))
sketch10.addConstraint(Sketcher.Constraint("Horizontal", 3))
sketch10.addConstraint(Sketcher.Constraint("Equal", 3, 0))
sketch10.addConstraint(Sketcher.Constraint("DistanceX", 1, 1, 1, 2, 10.0))
sketch10.addConstraint(Sketcher.Constraint("DistanceX", -1, 1, 0, 2, 46.0))
sketch10.addConstraint(Sketcher.Constraint("DistanceY", -1, 1, 0, 2, 5.0))
pocket5 = body.newObject("PartDesign::Pocket", "Pocket004")
pocket5.Profile = sketch10
pocket5.Type = "ThroughAll"
pocket5.Reversed = True
doc.recompute()

fillet = body.newObject("PartDesign::Fillet", "Fillet")
fillet.Base = (pocket5, edges_at(pocket5, [
    (56, 5, -5),
    (56, 5, 5),
    (46, 4.5, 5),
    (46, 4.5, -5),
]))
fillet.Radius = 3

doc.recompute()
